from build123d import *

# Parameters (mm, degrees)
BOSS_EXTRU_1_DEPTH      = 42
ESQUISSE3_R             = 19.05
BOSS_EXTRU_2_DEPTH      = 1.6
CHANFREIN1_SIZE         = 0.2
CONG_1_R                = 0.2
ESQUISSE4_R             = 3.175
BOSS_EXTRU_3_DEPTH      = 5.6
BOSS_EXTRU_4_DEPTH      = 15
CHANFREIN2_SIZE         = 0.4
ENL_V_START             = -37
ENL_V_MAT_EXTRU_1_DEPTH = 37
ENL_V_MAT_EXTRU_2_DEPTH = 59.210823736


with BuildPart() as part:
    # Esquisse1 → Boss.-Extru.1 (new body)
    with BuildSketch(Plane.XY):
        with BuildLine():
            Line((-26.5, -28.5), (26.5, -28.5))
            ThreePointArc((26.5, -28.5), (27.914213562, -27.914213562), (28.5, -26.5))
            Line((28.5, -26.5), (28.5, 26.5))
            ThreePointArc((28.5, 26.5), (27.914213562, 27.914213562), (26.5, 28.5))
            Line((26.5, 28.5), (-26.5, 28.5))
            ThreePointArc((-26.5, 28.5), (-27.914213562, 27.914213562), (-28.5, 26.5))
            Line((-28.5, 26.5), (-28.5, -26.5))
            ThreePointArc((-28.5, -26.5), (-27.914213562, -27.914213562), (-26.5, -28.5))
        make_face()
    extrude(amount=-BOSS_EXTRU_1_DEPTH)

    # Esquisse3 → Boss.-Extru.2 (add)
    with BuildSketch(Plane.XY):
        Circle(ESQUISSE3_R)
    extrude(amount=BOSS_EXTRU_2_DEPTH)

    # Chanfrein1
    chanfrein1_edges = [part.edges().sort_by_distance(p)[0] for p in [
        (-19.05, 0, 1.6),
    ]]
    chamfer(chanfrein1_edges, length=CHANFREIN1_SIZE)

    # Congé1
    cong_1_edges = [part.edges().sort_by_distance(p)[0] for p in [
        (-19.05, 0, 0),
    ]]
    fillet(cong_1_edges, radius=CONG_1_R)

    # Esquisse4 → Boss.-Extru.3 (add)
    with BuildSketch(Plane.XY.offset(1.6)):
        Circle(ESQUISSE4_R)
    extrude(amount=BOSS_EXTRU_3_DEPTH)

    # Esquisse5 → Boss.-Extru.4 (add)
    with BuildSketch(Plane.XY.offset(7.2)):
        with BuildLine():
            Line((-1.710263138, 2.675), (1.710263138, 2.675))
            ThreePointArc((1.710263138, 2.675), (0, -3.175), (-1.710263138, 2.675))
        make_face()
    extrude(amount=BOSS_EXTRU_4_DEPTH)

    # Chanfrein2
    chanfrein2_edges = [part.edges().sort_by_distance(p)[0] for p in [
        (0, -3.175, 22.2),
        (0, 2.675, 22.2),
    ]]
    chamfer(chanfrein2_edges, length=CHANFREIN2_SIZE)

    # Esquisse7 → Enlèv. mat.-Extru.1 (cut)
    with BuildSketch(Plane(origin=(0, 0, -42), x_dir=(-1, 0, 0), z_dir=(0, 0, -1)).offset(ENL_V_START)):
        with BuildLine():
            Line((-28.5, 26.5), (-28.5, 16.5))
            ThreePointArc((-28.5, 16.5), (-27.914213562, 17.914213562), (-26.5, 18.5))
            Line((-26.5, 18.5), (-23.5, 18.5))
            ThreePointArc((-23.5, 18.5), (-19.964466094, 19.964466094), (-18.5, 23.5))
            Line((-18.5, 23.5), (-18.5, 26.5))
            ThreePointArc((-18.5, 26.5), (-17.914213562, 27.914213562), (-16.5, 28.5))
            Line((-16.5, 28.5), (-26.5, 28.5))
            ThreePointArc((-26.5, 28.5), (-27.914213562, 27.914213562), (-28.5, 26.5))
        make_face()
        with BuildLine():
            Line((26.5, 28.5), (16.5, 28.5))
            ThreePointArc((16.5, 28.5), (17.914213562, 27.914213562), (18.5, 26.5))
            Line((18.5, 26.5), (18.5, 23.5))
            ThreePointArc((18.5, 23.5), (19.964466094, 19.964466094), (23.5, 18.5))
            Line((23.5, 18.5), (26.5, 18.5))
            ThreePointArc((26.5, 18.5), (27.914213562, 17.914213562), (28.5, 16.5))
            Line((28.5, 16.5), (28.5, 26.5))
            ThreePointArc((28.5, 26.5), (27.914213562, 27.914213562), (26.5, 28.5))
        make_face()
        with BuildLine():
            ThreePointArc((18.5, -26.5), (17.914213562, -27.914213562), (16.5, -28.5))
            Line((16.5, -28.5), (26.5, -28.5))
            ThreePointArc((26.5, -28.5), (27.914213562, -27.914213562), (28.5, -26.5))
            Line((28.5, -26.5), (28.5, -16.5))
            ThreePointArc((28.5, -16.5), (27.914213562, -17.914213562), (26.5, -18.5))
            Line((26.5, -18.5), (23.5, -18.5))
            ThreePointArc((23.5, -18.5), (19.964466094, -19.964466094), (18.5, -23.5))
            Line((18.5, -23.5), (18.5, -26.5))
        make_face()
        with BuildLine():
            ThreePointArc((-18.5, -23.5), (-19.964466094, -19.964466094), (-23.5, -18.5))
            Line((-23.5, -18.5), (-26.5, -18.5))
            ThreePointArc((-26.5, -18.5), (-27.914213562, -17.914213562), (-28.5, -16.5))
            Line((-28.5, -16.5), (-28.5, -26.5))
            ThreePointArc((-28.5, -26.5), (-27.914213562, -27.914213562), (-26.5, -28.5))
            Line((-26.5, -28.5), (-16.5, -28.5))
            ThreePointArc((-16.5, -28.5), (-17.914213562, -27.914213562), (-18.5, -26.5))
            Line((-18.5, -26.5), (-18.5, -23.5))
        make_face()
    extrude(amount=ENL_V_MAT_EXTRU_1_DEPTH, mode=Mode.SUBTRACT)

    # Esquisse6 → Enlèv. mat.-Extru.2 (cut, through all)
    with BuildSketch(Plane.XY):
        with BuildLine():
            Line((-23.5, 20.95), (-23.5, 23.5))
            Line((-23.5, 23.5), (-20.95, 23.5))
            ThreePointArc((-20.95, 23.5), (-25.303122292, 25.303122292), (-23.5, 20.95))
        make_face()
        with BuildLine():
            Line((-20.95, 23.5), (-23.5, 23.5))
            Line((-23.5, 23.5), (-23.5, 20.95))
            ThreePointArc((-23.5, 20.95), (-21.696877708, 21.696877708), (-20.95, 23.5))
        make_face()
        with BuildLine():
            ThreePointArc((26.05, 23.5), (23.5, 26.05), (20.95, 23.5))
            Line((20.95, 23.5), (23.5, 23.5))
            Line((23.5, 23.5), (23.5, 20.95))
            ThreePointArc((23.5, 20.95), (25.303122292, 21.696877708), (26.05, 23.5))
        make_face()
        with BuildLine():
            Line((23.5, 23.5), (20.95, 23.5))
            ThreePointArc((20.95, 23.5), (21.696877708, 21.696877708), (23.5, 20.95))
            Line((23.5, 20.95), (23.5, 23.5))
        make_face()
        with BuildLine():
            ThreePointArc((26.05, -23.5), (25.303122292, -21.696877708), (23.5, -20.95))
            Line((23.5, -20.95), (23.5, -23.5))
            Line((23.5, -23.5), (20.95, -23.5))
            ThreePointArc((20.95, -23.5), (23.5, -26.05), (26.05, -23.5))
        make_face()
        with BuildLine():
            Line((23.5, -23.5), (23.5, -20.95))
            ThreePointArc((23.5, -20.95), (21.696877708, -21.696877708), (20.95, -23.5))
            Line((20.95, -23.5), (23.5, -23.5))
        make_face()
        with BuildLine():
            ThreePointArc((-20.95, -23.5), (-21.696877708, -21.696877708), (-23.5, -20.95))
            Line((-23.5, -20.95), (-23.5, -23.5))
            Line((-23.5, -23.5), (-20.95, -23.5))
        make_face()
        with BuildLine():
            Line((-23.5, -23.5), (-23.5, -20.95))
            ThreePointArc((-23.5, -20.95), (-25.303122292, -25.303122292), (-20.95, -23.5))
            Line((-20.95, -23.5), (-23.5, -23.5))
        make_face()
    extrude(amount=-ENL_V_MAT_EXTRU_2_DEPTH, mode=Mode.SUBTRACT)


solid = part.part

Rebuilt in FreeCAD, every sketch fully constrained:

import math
import FreeCAD as App
import Part
import Sketcher
from FreeCAD import Vector
Q = App.Units.Quantity


def edges_at(feature, points):
    """Names of the edges that pass closest to the given points."""
    edges = feature.Shape.Edges
    near = lambda p: min(range(len(edges)), key=lambda i: edges[i].distToShape(Part.Vertex(*p))[0])
    return sorted({f"Edge{near(p) + 1}" for p in points})

doc = App.newDocument("Part")
params = doc.addObject("Spreadsheet::Sheet", "Params")
for row, (alias, value) in enumerate([
    ("sketch1_radius", "2 mm"),
    ("sketch1_width", "53 mm"),
    ("pad1_length", "42 mm"),
    ("sketch2_diameter", "38.1 mm"),
    ("pad2_length", "1.6 mm"),
    ("chamfer_size", "0.2 mm"),
    ("fillet_radius", "0.2 mm"),
    ("sketch3_diameter", "6.35 mm"),
    ("pad3_length", "5.6 mm"),
    ("pad4_length", "15 mm"),
    ("chamfer2_size", "0.4 mm"),
    ("sketch5_radius", "2 mm"),
    ("sketch5_radius2", "5 mm"),
    ("sketch5_width", "3 mm"),
    ("pocket1_length", "37 mm"),
    ("sketch6_radius", "2.55 mm"),
], start=1):
    params.set(f"A{row}", alias)
    params.set(f"B{row}", "=" + value)
    params.setAlias(f"B{row}", alias)

body = doc.addObject("PartDesign::Body", "Body")

# Sketch on XY plane
sketch1 = body.newObject("Sketcher::SketchObject", "Sketch")
sketch1.AttachmentSupport = (doc.getObject("XY_Plane"), [""])
sketch1.MapMode = "FlatFace"
sketch1.addGeometry([
    Part.LineSegment(Vector(-26.5, -28.5, 0), Vector(26.5, -28.5, 0)),  # 0
    Part.ArcOfCircle(Part.Circle(Vector(26.5, -26.5, 0), Vector(0, 0, 1), 2), math.radians(-90), math.radians(0)),  # 1
    Part.LineSegment(Vector(28.5, -26.5, 0), Vector(28.5, 26.5, 0)),  # 2
    Part.ArcOfCircle(Part.Circle(Vector(26.5, 26.5, 0), Vector(0, 0, 1), 2), math.radians(0), math.radians(90)),  # 3
    Part.LineSegment(Vector(26.5, 28.5, 0), Vector(-26.5, 28.5, 0)),  # 4
    Part.ArcOfCircle(Part.Circle(Vector(-26.5, 26.5, 0), Vector(0, 0, 1), 2), math.radians(90), math.radians(180)),  # 5
    Part.LineSegment(Vector(-28.5, 26.5, 0), Vector(-28.5, -26.5, 0)),  # 6
    Part.ArcOfCircle(Part.Circle(Vector(-26.5, -26.5, 0), Vector(0, 0, 1), 2), math.radians(-180), math.radians(-90)),  # 7
], False)
sketch1.addConstraint([
    Sketcher.Constraint("Tangent", 0, 2, 1, 1),
    Sketcher.Constraint("Tangent", 1, 2, 2, 1),
    Sketcher.Constraint("Tangent", 2, 2, 3, 1),
    Sketcher.Constraint("Tangent", 3, 2, 4, 1),
    Sketcher.Constraint("Tangent", 4, 2, 5, 1),
    Sketcher.Constraint("Tangent", 5, 2, 6, 1),
    Sketcher.Constraint("Tangent", 6, 2, 7, 1),
    Sketcher.Constraint("Tangent", 7, 2, 0, 1),
    Sketcher.Constraint("Horizontal", 0),
    Sketcher.Constraint("Vertical", 2),
    Sketcher.Constraint("Horizontal", 4),
    Sketcher.Constraint("Vertical", 6),
    Sketcher.Constraint("Equal", 1, 3),
    Sketcher.Constraint("Equal", 3, 5),
    Sketcher.Constraint("Equal", 5, 7),
    Sketcher.Constraint("Symmetric", 1, 3, 5, 3, -1, 1),
    Sketcher.Constraint("Equal", 4, 2),
    Sketcher.Constraint("Radius", 1, Q("2 mm")),
    Sketcher.Constraint("DistanceX", 0, 1, 0, 2, Q("53 mm")),
])
sketch1.setExpression("Constraints[17]", "Params.sketch1_radius")
sketch1.setExpression("Constraints[18]", "Params.sketch1_width")
pad1 = body.newObject("PartDesign::Pad", "Pad")
pad1.Profile = sketch1
pad1.setExpression("Length", "Params.pad1_length")
pad1.Reversed = True

# Sketch on XY plane
sketch2 = body.newObject("Sketcher::SketchObject", "Sketch001")
sketch2.AttachmentSupport = (doc.getObject("XY_Plane"), [""])
sketch2.MapMode = "FlatFace"
sketch2.addGeometry(Part.Circle(Vector(0, 0, 0), Vector(0, 0, 1), 19), False)
sketch2.addConstraint([
    Sketcher.Constraint("Coincident", 0, 3, -1, 1),
    Sketcher.Constraint("Diameter", 0, Q("38.1 mm")),
])
sketch2.setExpression("Constraints[1]", "Params.sketch2_diameter")
pad2 = body.newObject("PartDesign::Pad", "Pad001")
pad2.Profile = sketch2
pad2.setExpression("Length", "Params.pad2_length")
doc.recompute()

chamfer = body.newObject("PartDesign::Chamfer", "Chamfer")
chamfer.Base = (pad2, edges_at(pad2, [(-19.05, 0, 1.6)]))
chamfer.setExpression("Size", "Params.chamfer_size")
doc.recompute()

fillet = body.newObject("PartDesign::Fillet", "Fillet")
fillet.Base = (chamfer, edges_at(chamfer, [(-19.05, 0, 0)]))
fillet.setExpression("Radius", "Params.fillet_radius")

# Sketch on XY plane
sketch3 = body.newObject("Sketcher::SketchObject", "Sketch002")
sketch3.AttachmentSupport = (doc.getObject("XY_Plane"), [""])
sketch3.MapMode = "FlatFace"
sketch3.AttachmentOffset = App.Placement(Vector(0, 0, 1.6), App.Rotation())
sketch3.addGeometry(Part.Circle(Vector(0, 0, 0), Vector(0, 0, 1), 3.2), False)
sketch3.addConstraint([
    Sketcher.Constraint("Coincident", 0, 3, -1, 1),
    Sketcher.Constraint("Diameter", 0, Q("6.35 mm")),
])
sketch3.setExpression("Constraints[1]", "Params.sketch3_diameter")
pad3 = body.newObject("PartDesign::Pad", "Pad002")
pad3.Profile = sketch3
pad3.setExpression("Length", "Params.pad3_length")

# Sketch on XY plane
sketch4 = body.newObject("Sketcher::SketchObject", "Sketch003")
sketch4.AttachmentSupport = (doc.getObject("XY_Plane"), [""])
sketch4.MapMode = "FlatFace"
sketch4.AttachmentOffset = App.Placement(Vector(0, 0, 7.2), App.Rotation())
sketch4.addGeometry([
    Part.LineSegment(Vector(1.7, 2.7, 0), Vector(-1.7, 2.7, 0)),
    Part.ArcOfCircle(Part.Circle(Vector(0, 0, 0), Vector(0, 0, 1), 3.2), math.radians(123), math.radians(417)),
], False)
sketch4.addConstraint([
    Sketcher.Constraint("Coincident", 0, 1, 1, 2),
    Sketcher.Constraint("Coincident", 1, 1, 0, 2),
    Sketcher.Constraint("Horizontal", 0),
    Sketcher.Constraint("Coincident", 1, 3, -1, 1),
    Sketcher.Constraint("Radius", 1, Q("3.175 mm")),
    Sketcher.Constraint("DistanceY", -1, 1, 0, 1, Q("2.675 mm")),
])
pad4 = body.newObject("PartDesign::Pad", "Pad003")
pad4.Profile = sketch4
pad4.setExpression("Length", "Params.pad4_length")
doc.recompute()

chamfer2 = body.newObject("PartDesign::Chamfer", "Chamfer001")
chamfer2.Base = (pad4, edges_at(pad4, [(0, -3.175, 22.2), (0, 2.675, 22.2)]))
chamfer2.setExpression("Size", "Params.chamfer2_size")

# Sketch on XY plane
sketch5 = body.newObject("Sketcher::SketchObject", "Sketch004")
sketch5.AttachmentSupport = (doc.getObject("XY_Plane"), [""])
sketch5.MapMode = "FlatFace"
sketch5.AttachmentOffset = App.Placement(Vector(0, 0, -5), App.Rotation())
sketch5.addGeometry([
    Part.LineSegment(Vector(28.5, 26.5, 0), Vector(28.5, 16.5, 0)),  # 0
    Part.ArcOfCircle(Part.Circle(Vector(26.5, 16.5, 0), Vector(0, 0, 1), 2), math.radians(0), math.radians(90)),  # 1
    Part.LineSegment(Vector(26.5, 18.5, 0), Vector(23.5, 18.5, 0)),  # 2
    Part.ArcOfCircle(Part.Circle(Vector(23.5, 23.5, 0), Vector(0, 0, 1), 5), math.radians(180), math.radians(270)),  # 3
    Part.LineSegment(Vector(18.5, 23.5, 0), Vector(18.5, 26.5, 0)),  # 4
    Part.ArcOfCircle(Part.Circle(Vector(16.5, 26.5, 0), Vector(0, 0, 1), 2), math.radians(0), math.radians(90)),  # 5
    Part.LineSegment(Vector(16.5, 28.5, 0), Vector(26.5, 28.5, 0)),  # 6
    Part.ArcOfCircle(Part.Circle(Vector(26.5, 26.5, 0), Vector(0, 0, 1), 2), math.radians(0), math.radians(90)),  # 7
    Part.LineSegment(Vector(-26.5, 28.5, 0), Vector(-16.5, 28.5, 0)),  # 8
    Part.ArcOfCircle(Part.Circle(Vector(-16.5, 26.5, 0), Vector(0, 0, 1), 2), math.radians(90), math.radians(180)),  # 9
    Part.LineSegment(Vector(-18.5, 26.5, 0), Vector(-18.5, 23.5, 0)),  # 10
    Part.ArcOfCircle(Part.Circle(Vector(-23.5, 23.5, 0), Vector(0, 0, 1), 5), math.radians(-90), math.radians(0)),  # 11
    Part.LineSegment(Vector(-23.5, 18.5, 0), Vector(-26.5, 18.5, 0)),  # 12
    Part.ArcOfCircle(Part.Circle(Vector(-26.5, 16.5, 0), Vector(0, 0, 1), 2), math.radians(90), math.radians(180)),  # 13
    Part.LineSegment(Vector(-28.5, 16.5, 0), Vector(-28.5, 26.5, 0)),  # 14
    Part.ArcOfCircle(Part.Circle(Vector(-26.5, 26.5, 0), Vector(0, 0, 1), 2), math.radians(90), math.radians(180)),  # 15
    Part.ArcOfCircle(Part.Circle(Vector(-16.5, -26.5, 0), Vector(0, 0, 1), 2), math.radians(-180), math.radians(-90)),  # 16
    Part.LineSegment(Vector(-16.5, -28.5, 0), Vector(-26.5, -28.5, 0)),  # 17
    Part.ArcOfCircle(Part.Circle(Vector(-26.5, -26.5, 0), Vector(0, 0, 1), 2), math.radians(-180), math.radians(-90)),  # 18
    Part.LineSegment(Vector(-28.5, -26.5, 0), Vector(-28.5, -16.5, 0)),  # 19
    Part.ArcOfCircle(Part.Circle(Vector(-26.5, -16.5, 0), Vector(0, 0, 1), 2), math.radians(-180), math.radians(-90)),  # 20
    Part.LineSegment(Vector(-26.5, -18.5, 0), Vector(-23.5, -18.5, 0)),  # 21
    Part.ArcOfCircle(Part.Circle(Vector(-23.5, -23.5, 0), Vector(0, 0, 1), 5), math.radians(0), math.radians(90)),  # 22
    Part.LineSegment(Vector(-18.5, -23.5, 0), Vector(-18.5, -26.5, 0)),  # 23
    Part.ArcOfCircle(Part.Circle(Vector(23.5, -23.5, 0), Vector(0, 0, 1), 5), math.radians(90), math.radians(180)),  # 24
    Part.LineSegment(Vector(23.5, -18.5, 0), Vector(26.5, -18.5, 0)),  # 25
    Part.ArcOfCircle(Part.Circle(Vector(26.5, -16.5, 0), Vector(0, 0, 1), 2), math.radians(-90), math.radians(0)),  # 26
    Part.LineSegment(Vector(28.5, -16.5, 0), Vector(28.5, -26.5, 0)),  # 27
    Part.ArcOfCircle(Part.Circle(Vector(26.5, -26.5, 0), Vector(0, 0, 1), 2), math.radians(-90), math.radians(0)),  # 28
    Part.LineSegment(Vector(26.5, -28.5, 0), Vector(16.5, -28.5, 0)),  # 29
    Part.ArcOfCircle(Part.Circle(Vector(16.5, -26.5, 0), Vector(0, 0, 1), 2), math.radians(-90), math.radians(0)),  # 30
    Part.LineSegment(Vector(18.5, -26.5, 0), Vector(18.5, -23.5, 0)),  # 31
], False)
sketch5.addConstraint([
    Sketcher.Constraint("Tangent", 0, 2, 1, 1),
    Sketcher.Constraint("Tangent", 1, 2, 2, 1),
    Sketcher.Constraint("Tangent", 2, 2, 3, 2),
    Sketcher.Constraint("Tangent", 3, 1, 4, 1),
    Sketcher.Constraint("Tangent", 4, 2, 5, 1),
    Sketcher.Constraint("Tangent", 5, 2, 6, 1),
    Sketcher.Constraint("Tangent", 6, 2, 7, 2),
    Sketcher.Constraint("Tangent", 7, 1, 0, 1),
    Sketcher.Constraint("Tangent", 8, 2, 9, 1),
    Sketcher.Constraint("Tangent", 9, 2, 10, 1),
    Sketcher.Constraint("Tangent", 10, 2, 11, 2),
    Sketcher.Constraint("Tangent", 11, 1, 12, 1),
    Sketcher.Constraint("Tangent", 12, 2, 13, 1),
    Sketcher.Constraint("Tangent", 13, 2, 14, 1),
    Sketcher.Constraint("Tangent", 14, 2, 15, 2),
    Sketcher.Constraint("Tangent", 15, 1, 8, 1),
    Sketcher.Constraint("Tangent", 16, 2, 17, 1),
    Sketcher.Constraint("Tangent", 17, 2, 18, 2),
    Sketcher.Constraint("Tangent", 18, 1, 19, 1),
    Sketcher.Constraint("Tangent", 19, 2, 20, 1),
    Sketcher.Constraint("Tangent", 20, 2, 21, 1),
    Sketcher.Constraint("Tangent", 21, 2, 22, 2),
    Sketcher.Constraint("Tangent", 22, 1, 23, 1),
    Sketcher.Constraint("Tangent", 23, 2, 16, 1),
    Sketcher.Constraint("Tangent", 24, 1, 25, 1),
    Sketcher.Constraint("Tangent", 25, 2, 26, 1),
    Sketcher.Constraint("Tangent", 26, 2, 27, 1),
    Sketcher.Constraint("Tangent", 27, 2, 28, 2),
    Sketcher.Constraint("Tangent", 28, 1, 29, 1),
    Sketcher.Constraint("Tangent", 29, 2, 30, 1),
    Sketcher.Constraint("Tangent", 30, 2, 31, 1),
    Sketcher.Constraint("Tangent", 31, 2, 24, 2),
    Sketcher.Constraint("Vertical", 0),
    Sketcher.Constraint("Horizontal", 2),
    Sketcher.Constraint("Vertical", 4),
    Sketcher.Constraint("Horizontal", 6),
    Sketcher.Constraint("Horizontal", 8),
    Sketcher.Constraint("Vertical", 10),
    Sketcher.Constraint("Horizontal", 12),
    Sketcher.Constraint("Vertical", 14),
    Sketcher.Constraint("Horizontal", 17),
    Sketcher.Constraint("Vertical", 19),
    Sketcher.Constraint("Horizontal", 21),
    Sketcher.Constraint("Vertical", 23),
    Sketcher.Constraint("Horizontal", 25),
    Sketcher.Constraint("Vertical", 27),
    Sketcher.Constraint("Horizontal", 29),
    Sketcher.Constraint("Vertical", 31),
    Sketcher.Constraint("Equal", 1, 5),
    Sketcher.Constraint("Equal", 5, 7),
    Sketcher.Constraint("Equal", 7, 9),
    Sketcher.Constraint("Equal", 3, 11),
    Sketcher.Constraint("Equal", 9, 13),
    Sketcher.Constraint("Equal", 13, 15),
    Sketcher.Constraint("Equal", 15, 16),
    Sketcher.Constraint("Equal", 16, 18),
    Sketcher.Constraint("Equal", 18, 20),
    Sketcher.Constraint("Equal", 11, 22),
    Sketcher.Constraint("Equal", 22, 24),
    Sketcher.Constraint("Equal", 20, 26),
    Sketcher.Constraint("Equal", 26, 28),
    Sketcher.Constraint("Equal", 28, 30),
    Sketcher.Constraint("Symmetric", 5, 3, 16, 3, -1, 1),
    Sketcher.Constraint("Symmetric", 1, 3, 20, 3, -1, 1),
    Sketcher.Constraint("Symmetric", 11, 3, 24, 3, -1, 1),
    Sketcher.Constraint("Symmetric", 15, 3, 28, 3, -1, 1),
    Sketcher.Constraint("Symmetric", 5, 3, 9, 3, -2),
    Sketcher.Constraint("Symmetric", 1, 3, 13, 3, -2),
    Sketcher.Constraint("Equal", 29, 0),
    Sketcher.Constraint("Radius", 1, Q("2 mm")),
    Sketcher.Constraint("Radius", 3, Q("5 mm")),
    Sketcher.Constraint("DistanceX", 2, 2, 2, 1, Q("3 mm")),
    Sketcher.Constraint("DistanceX", 9, 3, 5, 3, Q("33 mm")),
    Sketcher.Constraint("DistanceY", 16, 3, 13, 3, Q("43 mm")),
])
sketch5.setExpression("Constraints[69]", "Params.sketch5_radius")
sketch5.setExpression("Constraints[70]", "Params.sketch5_radius2")
sketch5.setExpression("Constraints[71]", "Params.sketch5_width")
pocket1 = body.newObject("PartDesign::Pocket", "Pocket")
pocket1.Profile = sketch5
pocket1.setExpression("Length", "Params.pocket1_length")

# Sketch on XY plane
sketch6 = body.newObject("Sketcher::SketchObject", "Sketch005")
sketch6.AttachmentSupport = (doc.getObject("XY_Plane"), [""])
sketch6.MapMode = "FlatFace"
sketch6.addGeometry([
    Part.ArcOfCircle(Part.Circle(Vector(-23.5, 23.5, 0), Vector(0, 0, 1), 2.5), math.radians(0), math.radians(270)),  # 0
    Part.ArcOfCircle(Part.Circle(Vector(-23.5, 23.5, 0), Vector(0, 0, 1), 2.5), math.radians(-90), math.radians(0)),  # 1
    Part.ArcOfCircle(Part.Circle(Vector(23.5, 23.5, 0), Vector(0, 0, 1), 2.5), math.radians(0), math.radians(180)),  # 2
    Part.ArcOfCircle(Part.Circle(Vector(23.5, 23.5, 0), Vector(0, 0, 1), 2.5), math.radians(180), math.radians(270)),  # 3
    Part.ArcOfCircle(Part.Circle(Vector(23.5, 23.5, 0), Vector(0, 0, 1), 2.5), math.radians(-90), math.radians(0)),  # 4
    Part.ArcOfCircle(Part.Circle(Vector(23.5, -23.5, 0), Vector(0, 0, 1), 2.5), math.radians(0), math.radians(90)),  # 5
    Part.ArcOfCircle(Part.Circle(Vector(23.5, -23.5, 0), Vector(0, 0, 1), 2.5), math.radians(90), math.radians(180)),  # 6
    Part.ArcOfCircle(Part.Circle(Vector(23.5, -23.5, 0), Vector(0, 0, 1), 2.5), math.radians(180), math.radians(360)),  # 7
    Part.ArcOfCircle(Part.Circle(Vector(-23.5, -23.5, 0), Vector(0, 0, 1), 2.5), math.radians(0), math.radians(90)),  # 8
    Part.ArcOfCircle(Part.Circle(Vector(-23.5, -23.5, 0), Vector(0, 0, 1), 2.5), math.radians(90), math.radians(360)),  # 9
], False)
sketch6.addConstraint([
    Sketcher.Constraint("Tangent", 0, 1, 1, 2),
    Sketcher.Constraint("Coincident", 1, 1, 0, 2),
    Sketcher.Constraint("Tangent", 2, 2, 3, 1),
    Sketcher.Constraint("Tangent", 3, 2, 4, 1),
    Sketcher.Constraint("Tangent", 4, 2, 2, 1),
    Sketcher.Constraint("Tangent", 5, 2, 6, 1),
    Sketcher.Constraint("Tangent", 6, 2, 7, 1),
    Sketcher.Constraint("Tangent", 7, 2, 5, 1),
    Sketcher.Constraint("Tangent", 8, 1, 9, 2),
    Sketcher.Constraint("Coincident", 9, 1, 8, 2),
    Sketcher.Constraint("Equal", 1, 2),
    Sketcher.Constraint("Equal", 4, 5),
    Sketcher.Constraint("Equal", 7, 8),
    Sketcher.Constraint("Symmetric", 0, 3, 5, 3, -1, 1),
    Sketcher.Constraint("Symmetric", 2, 3, 8, 3, -1, 1),
    Sketcher.Constraint("Symmetric", 0, 3, 2, 3, -2),
    Sketcher.Constraint("Horizontal", 4, 3, 0, 1),
    Sketcher.Constraint("Horizontal", 0, 1, 2, 2),
    Sketcher.Constraint("Horizontal", 2, 2, 4, 2),
    Sketcher.Constraint("Horizontal", 9, 3, 6, 2),
    Sketcher.Constraint("Horizontal", 6, 2, 7, 2),
    Sketcher.Constraint("Horizontal", 7, 2, 8, 1),
    Sketcher.Constraint("Vertical", 9, 3, 1, 1),
    Sketcher.Constraint("Vertical", 7, 3, 3, 2),
    Sketcher.Constraint("Vertical", 3, 2, 5, 2),
    Sketcher.Constraint("Vertical", 1, 1, 9, 1),
    Sketcher.Constraint("Radius", 0, Q("2.55 mm")),
    Sketcher.Constraint("DistanceX", 0, 3, 2, 3, Q("47 mm")),
    Sketcher.Constraint("DistanceY", 5, 3, 2, 3, Q("47 mm")),
])
sketch6.setExpression("Constraints[26]", "Params.sketch6_radius")
pocket2 = body.newObject("PartDesign::Pocket", "Pocket001")
pocket2.Profile = sketch6
pocket2.Type = "ThroughAll"

doc.recompute()
